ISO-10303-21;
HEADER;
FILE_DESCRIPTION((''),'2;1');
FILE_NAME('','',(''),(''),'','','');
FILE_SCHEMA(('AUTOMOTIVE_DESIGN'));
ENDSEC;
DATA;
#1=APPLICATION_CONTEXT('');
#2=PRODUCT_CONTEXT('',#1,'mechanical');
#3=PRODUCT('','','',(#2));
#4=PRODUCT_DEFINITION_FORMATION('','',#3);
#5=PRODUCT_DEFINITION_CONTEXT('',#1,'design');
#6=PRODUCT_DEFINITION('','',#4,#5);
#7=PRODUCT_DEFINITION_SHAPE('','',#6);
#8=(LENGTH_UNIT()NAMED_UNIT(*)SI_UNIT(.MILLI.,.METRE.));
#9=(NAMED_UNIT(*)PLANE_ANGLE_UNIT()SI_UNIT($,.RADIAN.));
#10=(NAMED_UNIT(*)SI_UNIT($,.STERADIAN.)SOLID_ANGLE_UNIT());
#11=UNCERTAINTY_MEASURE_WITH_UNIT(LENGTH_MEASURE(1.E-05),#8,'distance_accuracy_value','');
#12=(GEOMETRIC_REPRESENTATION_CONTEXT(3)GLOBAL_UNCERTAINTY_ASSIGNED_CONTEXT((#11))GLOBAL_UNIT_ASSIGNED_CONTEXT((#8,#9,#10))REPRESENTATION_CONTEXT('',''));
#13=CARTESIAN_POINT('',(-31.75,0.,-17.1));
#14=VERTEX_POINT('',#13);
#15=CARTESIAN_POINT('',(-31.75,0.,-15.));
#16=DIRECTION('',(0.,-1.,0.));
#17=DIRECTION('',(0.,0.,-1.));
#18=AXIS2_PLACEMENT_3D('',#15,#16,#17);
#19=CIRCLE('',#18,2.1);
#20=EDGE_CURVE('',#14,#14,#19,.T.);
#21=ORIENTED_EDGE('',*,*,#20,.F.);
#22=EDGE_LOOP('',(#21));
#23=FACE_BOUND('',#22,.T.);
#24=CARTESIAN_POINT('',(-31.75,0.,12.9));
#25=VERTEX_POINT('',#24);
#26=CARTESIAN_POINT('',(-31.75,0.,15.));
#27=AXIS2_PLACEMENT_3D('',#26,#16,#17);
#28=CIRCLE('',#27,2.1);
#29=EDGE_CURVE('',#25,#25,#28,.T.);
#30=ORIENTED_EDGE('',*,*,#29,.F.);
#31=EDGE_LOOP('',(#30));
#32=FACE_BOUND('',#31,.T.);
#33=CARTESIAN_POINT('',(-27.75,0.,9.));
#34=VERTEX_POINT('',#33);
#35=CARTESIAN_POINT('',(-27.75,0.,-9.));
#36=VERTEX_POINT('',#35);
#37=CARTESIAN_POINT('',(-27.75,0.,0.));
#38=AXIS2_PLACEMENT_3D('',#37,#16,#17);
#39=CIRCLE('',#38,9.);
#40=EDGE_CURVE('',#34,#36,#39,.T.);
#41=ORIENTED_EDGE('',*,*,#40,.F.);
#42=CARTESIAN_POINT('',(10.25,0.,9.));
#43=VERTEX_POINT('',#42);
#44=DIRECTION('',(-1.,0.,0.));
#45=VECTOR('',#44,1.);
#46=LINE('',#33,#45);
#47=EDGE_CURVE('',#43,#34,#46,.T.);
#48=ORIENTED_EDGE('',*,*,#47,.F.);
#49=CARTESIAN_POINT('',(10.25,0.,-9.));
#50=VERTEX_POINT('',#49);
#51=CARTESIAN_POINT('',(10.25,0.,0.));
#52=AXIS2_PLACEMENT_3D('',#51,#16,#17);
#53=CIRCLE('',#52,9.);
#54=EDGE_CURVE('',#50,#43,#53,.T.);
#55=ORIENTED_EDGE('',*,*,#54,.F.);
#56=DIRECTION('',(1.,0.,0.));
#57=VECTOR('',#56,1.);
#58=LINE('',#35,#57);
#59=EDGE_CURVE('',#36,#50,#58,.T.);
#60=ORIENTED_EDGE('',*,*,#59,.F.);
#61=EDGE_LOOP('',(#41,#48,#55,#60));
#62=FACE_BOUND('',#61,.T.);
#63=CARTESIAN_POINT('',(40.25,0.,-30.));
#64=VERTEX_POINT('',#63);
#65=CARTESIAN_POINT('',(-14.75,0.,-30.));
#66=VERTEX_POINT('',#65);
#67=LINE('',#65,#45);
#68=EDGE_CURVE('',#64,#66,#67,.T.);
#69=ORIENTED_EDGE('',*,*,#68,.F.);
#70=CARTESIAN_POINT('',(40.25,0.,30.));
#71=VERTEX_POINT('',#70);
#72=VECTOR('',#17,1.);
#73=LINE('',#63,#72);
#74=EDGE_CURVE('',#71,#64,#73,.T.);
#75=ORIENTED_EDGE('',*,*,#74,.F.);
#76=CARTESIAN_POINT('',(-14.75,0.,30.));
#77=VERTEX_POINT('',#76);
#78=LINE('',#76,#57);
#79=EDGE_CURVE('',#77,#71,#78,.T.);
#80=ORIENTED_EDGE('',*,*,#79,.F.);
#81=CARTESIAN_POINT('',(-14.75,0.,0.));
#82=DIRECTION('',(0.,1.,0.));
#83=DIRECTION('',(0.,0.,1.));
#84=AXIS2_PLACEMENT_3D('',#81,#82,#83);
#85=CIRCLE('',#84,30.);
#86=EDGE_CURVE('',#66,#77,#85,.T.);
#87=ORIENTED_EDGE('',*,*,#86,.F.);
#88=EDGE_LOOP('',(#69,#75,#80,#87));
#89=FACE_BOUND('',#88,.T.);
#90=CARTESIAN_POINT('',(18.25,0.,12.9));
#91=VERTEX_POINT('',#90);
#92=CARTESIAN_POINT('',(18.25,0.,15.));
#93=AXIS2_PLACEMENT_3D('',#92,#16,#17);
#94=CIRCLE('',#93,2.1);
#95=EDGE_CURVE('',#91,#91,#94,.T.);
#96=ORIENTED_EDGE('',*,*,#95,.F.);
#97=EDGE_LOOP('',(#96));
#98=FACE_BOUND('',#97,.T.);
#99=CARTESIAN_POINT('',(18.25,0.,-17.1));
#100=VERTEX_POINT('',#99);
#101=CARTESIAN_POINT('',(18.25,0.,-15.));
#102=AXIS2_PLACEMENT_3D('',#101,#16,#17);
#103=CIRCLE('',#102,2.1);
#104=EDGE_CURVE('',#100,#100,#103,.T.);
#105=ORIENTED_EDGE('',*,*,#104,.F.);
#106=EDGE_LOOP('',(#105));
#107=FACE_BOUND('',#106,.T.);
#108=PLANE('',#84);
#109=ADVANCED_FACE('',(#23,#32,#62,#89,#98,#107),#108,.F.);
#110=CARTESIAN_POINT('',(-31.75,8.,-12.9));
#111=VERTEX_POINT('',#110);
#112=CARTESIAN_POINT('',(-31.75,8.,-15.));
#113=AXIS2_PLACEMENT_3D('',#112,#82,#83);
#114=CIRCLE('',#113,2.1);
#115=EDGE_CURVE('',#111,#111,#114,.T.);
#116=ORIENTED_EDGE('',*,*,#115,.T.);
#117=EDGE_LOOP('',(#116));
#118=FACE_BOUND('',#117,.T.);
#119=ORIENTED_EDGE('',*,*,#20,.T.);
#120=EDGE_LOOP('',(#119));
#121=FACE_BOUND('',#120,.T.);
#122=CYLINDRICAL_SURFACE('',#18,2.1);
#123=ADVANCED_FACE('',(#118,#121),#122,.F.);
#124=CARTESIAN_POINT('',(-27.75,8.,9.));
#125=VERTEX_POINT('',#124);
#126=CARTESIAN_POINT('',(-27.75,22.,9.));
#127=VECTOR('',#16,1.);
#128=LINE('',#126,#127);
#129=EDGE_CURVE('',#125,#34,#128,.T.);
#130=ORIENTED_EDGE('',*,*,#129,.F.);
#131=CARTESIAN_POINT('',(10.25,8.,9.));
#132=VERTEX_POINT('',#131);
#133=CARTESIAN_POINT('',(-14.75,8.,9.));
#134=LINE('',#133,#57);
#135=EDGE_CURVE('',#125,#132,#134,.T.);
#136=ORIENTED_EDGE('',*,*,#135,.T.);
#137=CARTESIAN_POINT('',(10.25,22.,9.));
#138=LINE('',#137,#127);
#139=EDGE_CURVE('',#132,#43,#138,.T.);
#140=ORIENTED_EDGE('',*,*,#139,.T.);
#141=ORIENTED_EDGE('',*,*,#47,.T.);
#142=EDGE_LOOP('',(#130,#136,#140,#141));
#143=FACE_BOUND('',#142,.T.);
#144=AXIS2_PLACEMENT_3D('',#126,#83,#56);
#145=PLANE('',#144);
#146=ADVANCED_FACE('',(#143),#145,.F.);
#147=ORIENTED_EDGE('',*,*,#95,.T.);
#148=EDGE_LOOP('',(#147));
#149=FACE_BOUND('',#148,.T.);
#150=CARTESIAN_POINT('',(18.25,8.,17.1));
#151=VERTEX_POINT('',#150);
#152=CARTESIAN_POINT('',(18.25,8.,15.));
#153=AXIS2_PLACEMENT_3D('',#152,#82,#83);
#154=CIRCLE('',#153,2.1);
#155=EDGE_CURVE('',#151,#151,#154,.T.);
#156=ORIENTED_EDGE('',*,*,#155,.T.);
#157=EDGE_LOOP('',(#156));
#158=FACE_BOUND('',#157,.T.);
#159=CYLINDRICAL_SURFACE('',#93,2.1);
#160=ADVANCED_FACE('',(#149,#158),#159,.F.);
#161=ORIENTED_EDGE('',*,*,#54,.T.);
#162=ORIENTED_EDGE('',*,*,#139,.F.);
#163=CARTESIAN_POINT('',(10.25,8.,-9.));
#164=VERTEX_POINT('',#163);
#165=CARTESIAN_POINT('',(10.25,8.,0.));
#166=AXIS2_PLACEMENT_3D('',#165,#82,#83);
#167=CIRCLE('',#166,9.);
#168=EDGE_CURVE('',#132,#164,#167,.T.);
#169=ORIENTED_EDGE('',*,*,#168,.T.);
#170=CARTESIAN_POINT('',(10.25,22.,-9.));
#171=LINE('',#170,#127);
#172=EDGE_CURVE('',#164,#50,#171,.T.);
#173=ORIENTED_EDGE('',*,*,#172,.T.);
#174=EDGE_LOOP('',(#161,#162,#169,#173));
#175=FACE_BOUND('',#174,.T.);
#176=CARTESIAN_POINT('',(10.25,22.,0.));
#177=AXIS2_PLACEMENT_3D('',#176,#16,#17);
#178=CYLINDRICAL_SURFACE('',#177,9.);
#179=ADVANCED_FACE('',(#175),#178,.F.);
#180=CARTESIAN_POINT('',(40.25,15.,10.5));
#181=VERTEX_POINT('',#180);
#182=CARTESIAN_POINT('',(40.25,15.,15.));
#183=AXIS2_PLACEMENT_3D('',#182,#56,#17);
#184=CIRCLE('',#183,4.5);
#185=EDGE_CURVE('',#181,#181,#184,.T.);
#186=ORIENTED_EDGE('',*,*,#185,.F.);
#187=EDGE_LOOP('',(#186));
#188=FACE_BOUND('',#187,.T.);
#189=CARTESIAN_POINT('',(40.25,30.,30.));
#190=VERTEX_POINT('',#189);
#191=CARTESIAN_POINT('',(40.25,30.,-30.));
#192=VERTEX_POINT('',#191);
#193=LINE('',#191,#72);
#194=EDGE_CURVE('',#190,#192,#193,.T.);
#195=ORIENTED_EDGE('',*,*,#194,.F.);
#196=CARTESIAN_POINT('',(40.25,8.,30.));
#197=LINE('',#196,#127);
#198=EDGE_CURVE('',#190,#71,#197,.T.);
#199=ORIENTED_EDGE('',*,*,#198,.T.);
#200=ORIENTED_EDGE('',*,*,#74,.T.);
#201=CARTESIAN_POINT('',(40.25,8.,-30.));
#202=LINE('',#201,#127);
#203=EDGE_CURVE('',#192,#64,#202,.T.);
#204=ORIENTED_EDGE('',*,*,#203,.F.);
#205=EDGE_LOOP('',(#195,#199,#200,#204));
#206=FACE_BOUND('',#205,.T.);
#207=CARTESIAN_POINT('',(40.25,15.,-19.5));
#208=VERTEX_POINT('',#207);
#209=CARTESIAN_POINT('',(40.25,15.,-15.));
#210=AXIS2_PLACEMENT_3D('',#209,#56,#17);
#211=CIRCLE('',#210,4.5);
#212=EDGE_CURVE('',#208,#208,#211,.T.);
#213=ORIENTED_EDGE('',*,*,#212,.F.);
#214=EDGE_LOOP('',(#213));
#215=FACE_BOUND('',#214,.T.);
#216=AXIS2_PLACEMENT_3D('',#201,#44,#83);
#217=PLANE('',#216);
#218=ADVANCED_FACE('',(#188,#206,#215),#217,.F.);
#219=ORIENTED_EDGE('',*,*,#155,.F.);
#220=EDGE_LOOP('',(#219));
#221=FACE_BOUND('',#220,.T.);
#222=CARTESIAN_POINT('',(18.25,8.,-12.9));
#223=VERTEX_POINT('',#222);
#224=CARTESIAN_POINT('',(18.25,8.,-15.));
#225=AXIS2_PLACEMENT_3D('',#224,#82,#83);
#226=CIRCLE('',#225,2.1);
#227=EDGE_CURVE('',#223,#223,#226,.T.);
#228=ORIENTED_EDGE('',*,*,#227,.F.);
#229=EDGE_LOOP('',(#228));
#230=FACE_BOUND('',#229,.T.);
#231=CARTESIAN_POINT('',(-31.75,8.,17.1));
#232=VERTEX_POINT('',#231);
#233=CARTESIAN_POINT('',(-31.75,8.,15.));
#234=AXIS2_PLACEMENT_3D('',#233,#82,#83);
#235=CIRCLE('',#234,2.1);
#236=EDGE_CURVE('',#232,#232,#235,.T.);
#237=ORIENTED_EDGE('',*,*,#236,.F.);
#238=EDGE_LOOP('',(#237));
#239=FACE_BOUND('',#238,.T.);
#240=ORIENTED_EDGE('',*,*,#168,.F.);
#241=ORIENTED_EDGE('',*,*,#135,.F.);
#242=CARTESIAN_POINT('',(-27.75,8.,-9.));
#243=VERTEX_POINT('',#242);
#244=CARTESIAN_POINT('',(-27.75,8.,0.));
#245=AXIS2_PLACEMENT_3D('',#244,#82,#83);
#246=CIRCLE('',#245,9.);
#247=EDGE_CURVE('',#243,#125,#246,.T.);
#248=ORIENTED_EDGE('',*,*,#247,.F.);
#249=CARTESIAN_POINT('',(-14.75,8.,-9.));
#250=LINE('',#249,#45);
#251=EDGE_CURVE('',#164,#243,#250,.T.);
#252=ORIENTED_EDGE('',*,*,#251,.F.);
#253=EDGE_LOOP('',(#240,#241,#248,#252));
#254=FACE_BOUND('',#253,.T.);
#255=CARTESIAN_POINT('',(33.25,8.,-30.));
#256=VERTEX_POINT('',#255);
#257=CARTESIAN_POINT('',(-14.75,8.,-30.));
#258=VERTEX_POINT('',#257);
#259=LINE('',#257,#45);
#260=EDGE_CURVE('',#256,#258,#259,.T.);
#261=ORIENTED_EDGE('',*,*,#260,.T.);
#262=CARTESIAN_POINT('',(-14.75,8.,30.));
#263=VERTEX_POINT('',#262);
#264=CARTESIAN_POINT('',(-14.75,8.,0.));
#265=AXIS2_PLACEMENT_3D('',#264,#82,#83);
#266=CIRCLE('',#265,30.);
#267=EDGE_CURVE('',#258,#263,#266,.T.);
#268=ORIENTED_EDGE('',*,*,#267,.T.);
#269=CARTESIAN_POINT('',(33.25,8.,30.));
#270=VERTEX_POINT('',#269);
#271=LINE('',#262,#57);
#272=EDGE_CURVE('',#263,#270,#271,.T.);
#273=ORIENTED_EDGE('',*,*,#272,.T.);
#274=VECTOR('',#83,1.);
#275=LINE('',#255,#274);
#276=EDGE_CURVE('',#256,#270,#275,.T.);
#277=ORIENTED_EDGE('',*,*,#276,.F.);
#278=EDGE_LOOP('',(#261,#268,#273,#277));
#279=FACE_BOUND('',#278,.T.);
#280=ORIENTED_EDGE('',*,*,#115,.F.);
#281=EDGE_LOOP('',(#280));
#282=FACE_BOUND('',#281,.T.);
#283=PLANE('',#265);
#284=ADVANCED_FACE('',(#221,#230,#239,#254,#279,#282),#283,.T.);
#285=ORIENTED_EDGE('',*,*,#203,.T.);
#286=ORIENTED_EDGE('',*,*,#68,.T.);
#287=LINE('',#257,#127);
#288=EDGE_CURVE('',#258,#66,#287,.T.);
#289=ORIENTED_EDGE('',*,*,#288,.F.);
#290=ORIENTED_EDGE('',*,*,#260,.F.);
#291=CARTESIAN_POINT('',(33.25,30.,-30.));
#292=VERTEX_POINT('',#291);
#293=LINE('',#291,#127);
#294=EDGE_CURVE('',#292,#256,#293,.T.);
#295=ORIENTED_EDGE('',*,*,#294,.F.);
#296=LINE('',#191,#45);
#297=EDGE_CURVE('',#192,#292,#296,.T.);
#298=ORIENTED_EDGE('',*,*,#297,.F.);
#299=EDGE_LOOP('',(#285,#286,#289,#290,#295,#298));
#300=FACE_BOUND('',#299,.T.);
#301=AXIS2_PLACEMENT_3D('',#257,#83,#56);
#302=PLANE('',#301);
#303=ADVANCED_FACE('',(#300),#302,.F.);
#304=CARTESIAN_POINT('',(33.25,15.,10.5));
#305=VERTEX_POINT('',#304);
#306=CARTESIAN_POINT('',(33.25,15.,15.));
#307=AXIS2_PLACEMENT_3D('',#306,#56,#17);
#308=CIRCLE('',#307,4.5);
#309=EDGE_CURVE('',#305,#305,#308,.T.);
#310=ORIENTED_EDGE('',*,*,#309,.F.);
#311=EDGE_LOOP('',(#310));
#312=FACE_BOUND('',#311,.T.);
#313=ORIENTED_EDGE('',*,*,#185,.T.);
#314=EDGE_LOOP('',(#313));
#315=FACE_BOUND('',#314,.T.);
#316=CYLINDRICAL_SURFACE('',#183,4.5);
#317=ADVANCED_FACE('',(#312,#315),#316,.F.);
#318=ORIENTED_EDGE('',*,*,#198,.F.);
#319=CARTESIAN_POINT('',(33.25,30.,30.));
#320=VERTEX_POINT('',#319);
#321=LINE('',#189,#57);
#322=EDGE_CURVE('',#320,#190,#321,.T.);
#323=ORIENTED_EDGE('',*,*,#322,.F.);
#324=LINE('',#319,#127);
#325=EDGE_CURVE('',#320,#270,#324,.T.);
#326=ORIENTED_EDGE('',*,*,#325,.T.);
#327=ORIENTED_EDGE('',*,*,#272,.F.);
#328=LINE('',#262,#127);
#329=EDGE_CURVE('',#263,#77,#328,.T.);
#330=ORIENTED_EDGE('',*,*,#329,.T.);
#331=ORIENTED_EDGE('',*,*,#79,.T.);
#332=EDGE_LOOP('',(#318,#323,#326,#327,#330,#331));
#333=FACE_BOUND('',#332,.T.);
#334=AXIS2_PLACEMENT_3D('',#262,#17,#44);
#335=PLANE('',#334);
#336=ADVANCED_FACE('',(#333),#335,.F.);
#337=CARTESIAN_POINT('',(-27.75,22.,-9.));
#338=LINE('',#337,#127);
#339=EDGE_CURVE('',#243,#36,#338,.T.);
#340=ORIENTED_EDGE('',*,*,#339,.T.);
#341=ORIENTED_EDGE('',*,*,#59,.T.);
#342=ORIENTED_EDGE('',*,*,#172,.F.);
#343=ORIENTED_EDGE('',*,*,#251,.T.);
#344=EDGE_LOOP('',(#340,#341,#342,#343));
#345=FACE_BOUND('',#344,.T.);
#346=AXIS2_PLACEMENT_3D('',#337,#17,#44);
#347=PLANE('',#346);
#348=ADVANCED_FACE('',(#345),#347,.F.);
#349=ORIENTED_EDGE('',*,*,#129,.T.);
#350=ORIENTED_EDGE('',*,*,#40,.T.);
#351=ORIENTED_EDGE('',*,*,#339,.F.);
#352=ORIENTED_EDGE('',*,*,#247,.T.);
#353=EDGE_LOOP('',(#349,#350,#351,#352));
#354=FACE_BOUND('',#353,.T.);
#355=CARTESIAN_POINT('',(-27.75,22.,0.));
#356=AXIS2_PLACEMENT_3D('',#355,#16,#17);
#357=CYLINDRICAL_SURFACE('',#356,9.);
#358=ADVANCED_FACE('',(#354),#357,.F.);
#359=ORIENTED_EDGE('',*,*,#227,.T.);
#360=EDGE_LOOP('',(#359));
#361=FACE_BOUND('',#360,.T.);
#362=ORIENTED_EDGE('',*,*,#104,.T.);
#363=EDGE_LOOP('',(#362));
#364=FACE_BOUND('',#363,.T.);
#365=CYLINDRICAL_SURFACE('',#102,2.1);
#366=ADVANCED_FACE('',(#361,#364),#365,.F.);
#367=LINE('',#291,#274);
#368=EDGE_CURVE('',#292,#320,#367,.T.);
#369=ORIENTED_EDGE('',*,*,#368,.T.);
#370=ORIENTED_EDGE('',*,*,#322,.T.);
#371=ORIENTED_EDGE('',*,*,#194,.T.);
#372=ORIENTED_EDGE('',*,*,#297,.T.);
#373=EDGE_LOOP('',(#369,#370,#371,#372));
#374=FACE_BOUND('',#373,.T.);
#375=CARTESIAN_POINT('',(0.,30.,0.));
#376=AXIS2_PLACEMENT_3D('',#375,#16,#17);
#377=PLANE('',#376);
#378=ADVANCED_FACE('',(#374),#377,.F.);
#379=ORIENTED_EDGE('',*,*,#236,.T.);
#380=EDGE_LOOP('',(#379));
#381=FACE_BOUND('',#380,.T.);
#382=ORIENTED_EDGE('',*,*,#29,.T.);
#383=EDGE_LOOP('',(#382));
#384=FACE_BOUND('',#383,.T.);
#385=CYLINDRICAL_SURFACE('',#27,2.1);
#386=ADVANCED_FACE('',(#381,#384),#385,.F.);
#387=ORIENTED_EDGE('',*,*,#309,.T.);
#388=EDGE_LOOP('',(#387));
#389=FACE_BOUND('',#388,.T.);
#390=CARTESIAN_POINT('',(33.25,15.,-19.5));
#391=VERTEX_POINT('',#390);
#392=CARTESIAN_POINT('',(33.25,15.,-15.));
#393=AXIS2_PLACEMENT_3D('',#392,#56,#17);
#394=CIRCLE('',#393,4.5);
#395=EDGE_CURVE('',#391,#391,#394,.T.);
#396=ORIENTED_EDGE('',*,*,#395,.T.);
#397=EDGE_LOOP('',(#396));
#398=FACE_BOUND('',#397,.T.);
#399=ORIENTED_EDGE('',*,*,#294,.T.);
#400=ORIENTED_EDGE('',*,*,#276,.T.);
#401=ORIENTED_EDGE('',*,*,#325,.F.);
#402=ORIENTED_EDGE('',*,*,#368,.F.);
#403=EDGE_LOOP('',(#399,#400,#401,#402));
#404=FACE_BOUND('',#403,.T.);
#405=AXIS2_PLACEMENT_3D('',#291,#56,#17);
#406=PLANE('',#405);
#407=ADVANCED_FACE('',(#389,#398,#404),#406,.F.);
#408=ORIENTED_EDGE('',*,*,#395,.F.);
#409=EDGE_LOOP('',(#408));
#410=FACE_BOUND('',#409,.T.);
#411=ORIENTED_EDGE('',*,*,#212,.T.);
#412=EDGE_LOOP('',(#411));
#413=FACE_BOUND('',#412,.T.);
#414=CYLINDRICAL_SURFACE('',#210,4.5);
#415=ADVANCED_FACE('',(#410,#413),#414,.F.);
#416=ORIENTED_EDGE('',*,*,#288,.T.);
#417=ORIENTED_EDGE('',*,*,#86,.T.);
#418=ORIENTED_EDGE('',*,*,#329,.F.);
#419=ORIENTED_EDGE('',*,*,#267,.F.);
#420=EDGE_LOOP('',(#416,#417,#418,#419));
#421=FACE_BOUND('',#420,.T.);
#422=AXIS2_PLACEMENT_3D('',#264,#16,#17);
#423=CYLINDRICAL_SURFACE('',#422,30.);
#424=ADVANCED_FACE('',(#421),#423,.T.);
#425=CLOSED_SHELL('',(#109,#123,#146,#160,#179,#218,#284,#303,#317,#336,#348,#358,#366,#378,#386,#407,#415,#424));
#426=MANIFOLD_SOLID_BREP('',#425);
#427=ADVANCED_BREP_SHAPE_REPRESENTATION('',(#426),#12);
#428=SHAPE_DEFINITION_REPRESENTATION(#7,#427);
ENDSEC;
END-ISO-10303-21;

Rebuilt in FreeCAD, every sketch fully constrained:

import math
import FreeCAD as App
import Part
import Sketcher

doc = App.newDocument("Part")
body = doc.addObject("PartDesign::Body", "Body")

# Sketch on XZ plane
sketch1 = body.newObject("Sketcher::SketchObject", "Sketch")
sketch1.AttachmentSupport = (doc.getObject("XZ_Plane"), [""])
sketch1.MapMode = "FlatFace"
sketch1.addGeometry(Part.LineSegment(App.Vector(40, -30, 0), App.Vector(-15, -30, 0)), False)
sketch1.addGeometry(Part.ArcOfCircle(Part.Circle(App.Vector(-15, 0, 0), App.Vector(0, 0, 1), 30), math.radians(90), math.radians(270)), False)
sketch1.addGeometry(Part.LineSegment(App.Vector(-15, 30, 0), App.Vector(40, 30, 0)), False)
sketch1.addGeometry(Part.LineSegment(App.Vector(40, 30, 0), App.Vector(40, -30, 0)), False)
sketch1.addConstraint(Sketcher.Constraint("Tangent", 0, 2, 1, 2))
sketch1.addConstraint(Sketcher.Constraint("Tangent", 1, 1, 2, 1))
sketch1.addConstraint(Sketcher.Constraint("Coincident", 2, 2, 3, 1))
sketch1.addConstraint(Sketcher.Constraint("Coincident", 3, 2, 0, 1))
sketch1.addConstraint(Sketcher.Constraint("Horizontal", 0))
sketch1.addConstraint(Sketcher.Constraint("Horizontal", 2))
sketch1.addConstraint(Sketcher.Constraint("Vertical", 3))
sketch1.addConstraint(Sketcher.Constraint("PointOnObject", 1, 3, -1))
sketch1.addConstraint(Sketcher.Constraint("Radius", 1, 30.0))
sketch1.addConstraint(Sketcher.Constraint("DistanceX", 0, 2, 0, 1, 55.0))
sketch1.addConstraint(Sketcher.Constraint("DistanceX", 1, 3, -1, 1, 14.75))
pad1 = body.newObject("PartDesign::Pad", "Pad")
pad1.Profile = sketch1
pad1.Length = 8
pad1.Reversed = True

# Sketch on XZ plane
sketch2 = body.newObject("Sketcher::SketchObject", "Sketch001")
sketch2.AttachmentSupport = (doc.getObject("XZ_Plane"), [""])
sketch2.MapMode = "FlatFace"
sketch2.AttachmentOffset = App.Placement(App.Vector(0, 0, -8), App.Rotation())
sketch2.addGeometry(Part.LineSegment(App.Vector(33, -30, 0), App.Vector(33, 30, 0)), False)
sketch2.addGeometry(Part.LineSegment(App.Vector(33, 30, 0), App.Vector(40, 30, 0)), False)
sketch2.addGeometry(Part.LineSegment(App.Vector(40, 30, 0), App.Vector(40, -30, 0)), False)
sketch2.addGeometry(Part.LineSegment(App.Vector(40, -30, 0), App.Vector(33, -30, 0)), False)
sketch2.addConstraint(Sketcher.Constraint("Coincident", 0, 2, 1, 1))
sketch2.addConstraint(Sketcher.Constraint("Coincident", 1, 2, 2, 1))
sketch2.addConstraint(Sketcher.Constraint("Coincident", 2, 2, 3, 1))
sketch2.addConstraint(Sketcher.Constraint("Coincident", 3, 2, 0, 1))
sketch2.addConstraint(Sketcher.Constraint("Vertical", 0))
sketch2.addConstraint(Sketcher.Constraint("Horizontal", 1))
sketch2.addConstraint(Sketcher.Constraint("Vertical", 2))
sketch2.addConstraint(Sketcher.Constraint("Horizontal", 3))
sketch2.addConstraint(Sketcher.Constraint("DistanceX", 1, 1, 1, 2, 7.0))
sketch2.addConstraint(Sketcher.Constraint("DistanceY", 0, 1, 0, 2, 60.0))
sketch2.addConstraint(Sketcher.Constraint("DistanceY", -1, 1, 0, 2, 30.0))
sketch2.addConstraint(Sketcher.Constraint("DistanceX", -1, 1, 0, 2, 33.25))
pad2 = body.newObject("PartDesign::Pad", "Pad001")
pad2.Profile = sketch2
pad2.Length = 22
pad2.Reversed = True

# Sketch on YZ plane
sketch3 = body.newObject("Sketcher::SketchObject", "Sketch002")
sketch3.AttachmentSupport = (doc.getObject("YZ_Plane"), [""])
sketch3.MapMode = "FlatFace"
sketch3.AttachmentOffset = App.Placement(App.Vector(0, 0, 40.25), App.Rotation())
sketch3.addGeometry(Part.Circle(App.Vector(15, 15, 0), App.Vector(0, 0, 1), 4.5), False)
sketch3.addGeometry(Part.Circle(App.Vector(15, -15, 0), App.Vector(0, 0, 1), 4.5), False)
sketch3.addConstraint(Sketcher.Constraint("Equal", 0, 1))
sketch3.addConstraint(Sketcher.Constraint("Symmetric", 0, 3, 1, 3, -1))
sketch3.addConstraint(Sketcher.Constraint("Diameter", 0, 9.0))
sketch3.addConstraint(Sketcher.Constraint("DistanceX", -1, 1, 0, 3, 15.0))
sketch3.addConstraint(Sketcher.Constraint("DistanceY", -1, 1, 0, 3, 15.0))
doc.recompute()
hole = body.newObject("PartDesign::Hole", "Hole")
hole.Profile = sketch3
hole.ThreadType = "None"
hole.Diameter = 9
hole.DepthType = "ThroughAll"

# Sketch on XZ plane
sketch4 = body.newObject("Sketcher::SketchObject", "Sketch003")
sketch4.AttachmentSupport = (doc.getObject("XZ_Plane"), [""])
sketch4.MapMode = "FlatFace"
sketch4.addGeometry(Part.LineSegment(App.Vector(10, 9, 0), App.Vector(-28, 9, 0)), False)
sketch4.addGeometry(Part.ArcOfCircle(Part.Circle(App.Vector(-28, 0, 0), App.Vector(0, 0, 1), 9), math.radians(90), math.radians(270)), False)
sketch4.addGeometry(Part.LineSegment(App.Vector(-28, -9, 0), App.Vector(10, -9, 0)), False)
sketch4.addGeometry(Part.ArcOfCircle(Part.Circle(App.Vector(10, 0, 0), App.Vector(0, 0, 1), 9), math.radians(-90), math.radians(90)), False)
sketch4.addConstraint(Sketcher.Constraint("Tangent", 0, 2, 1, 1))
sketch4.addConstraint(Sketcher.Constraint("Tangent", 1, 2, 2, 1))
sketch4.addConstraint(Sketcher.Constraint("Tangent", 2, 2, 3, 1))
sketch4.addConstraint(Sketcher.Constraint("Tangent", 3, 2, 0, 1))
sketch4.addConstraint(Sketcher.Constraint("Horizontal", 0))
sketch4.addConstraint(Sketcher.Constraint("Horizontal", 2))
sketch4.addConstraint(Sketcher.Constraint("PointOnObject", 1, 3, -1))
sketch4.addConstraint(Sketcher.Constraint("Radius", 1, 9.0))
sketch4.addConstraint(Sketcher.Constraint("DistanceX", 0, 2, 0, 1, 38.0))
sketch4.addConstraint(Sketcher.Constraint("DistanceX", 1, 3, -1, 1, 27.75))
pocket1 = body.newObject("PartDesign::Pocket", "Pocket")
pocket1.Profile = sketch4
pocket1.Length = 22

# Sketch on XZ plane
sketch5 = body.newObject("Sketcher::SketchObject", "Sketch004")
sketch5.AttachmentSupport = (doc.getObject("XZ_Plane"), [""])
sketch5.MapMode = "FlatFace"
sketch5.addGeometry(Part.Circle(App.Vector(-31.8, 15, 0), App.Vector(0, 0, 1), 2.1), False)
sketch5.addGeometry(Part.Circle(App.Vector(18.2, 15, 0), App.Vector(0, 0, 1), 2.1), False)
sketch5.addGeometry(Part.Circle(App.Vector(18.2, -15, 0), App.Vector(0, 0, 1), 2.1), False)
sketch5.addGeometry(Part.Circle(App.Vector(-31.8, -15, 0), App.Vector(0, 0, 1), 2.1), False)
sketch5.addConstraint(Sketcher.Constraint("Equal", 0, 1))
sketch5.addConstraint(Sketcher.Constraint("Equal", 1, 2))
sketch5.addConstraint(Sketcher.Constraint("Equal", 2, 3))
sketch5.addConstraint(Sketcher.Constraint("Symmetric", 1, 3, 2, 3, -1))
sketch5.addConstraint(Sketcher.Constraint("Symmetric", 0, 3, 3, 3, -1))
sketch5.addConstraint(Sketcher.Constraint("Horizontal", 0, 3, 1, 3))
sketch5.addConstraint(Sketcher.Constraint("Diameter", 0, 4.2))
sketch5.addConstraint(Sketcher.Constraint("DistanceY", -1, 1, 0, 3, 15.0))
sketch5.addConstraint(Sketcher.Constraint("DistanceX", 0, 3, 1, 3, 50.0))
sketch5.addConstraint(Sketcher.Constraint("DistanceX", 0, 3, -1, 1, 31.75))
doc.recompute()
hole2 = body.newObject("PartDesign::Hole", "Hole001")
hole2.Profile = sketch5
hole2.ThreadType = "None"
hole2.Diameter = 4.2
hole2.DepthType = "ThroughAll"

doc.recompute()
